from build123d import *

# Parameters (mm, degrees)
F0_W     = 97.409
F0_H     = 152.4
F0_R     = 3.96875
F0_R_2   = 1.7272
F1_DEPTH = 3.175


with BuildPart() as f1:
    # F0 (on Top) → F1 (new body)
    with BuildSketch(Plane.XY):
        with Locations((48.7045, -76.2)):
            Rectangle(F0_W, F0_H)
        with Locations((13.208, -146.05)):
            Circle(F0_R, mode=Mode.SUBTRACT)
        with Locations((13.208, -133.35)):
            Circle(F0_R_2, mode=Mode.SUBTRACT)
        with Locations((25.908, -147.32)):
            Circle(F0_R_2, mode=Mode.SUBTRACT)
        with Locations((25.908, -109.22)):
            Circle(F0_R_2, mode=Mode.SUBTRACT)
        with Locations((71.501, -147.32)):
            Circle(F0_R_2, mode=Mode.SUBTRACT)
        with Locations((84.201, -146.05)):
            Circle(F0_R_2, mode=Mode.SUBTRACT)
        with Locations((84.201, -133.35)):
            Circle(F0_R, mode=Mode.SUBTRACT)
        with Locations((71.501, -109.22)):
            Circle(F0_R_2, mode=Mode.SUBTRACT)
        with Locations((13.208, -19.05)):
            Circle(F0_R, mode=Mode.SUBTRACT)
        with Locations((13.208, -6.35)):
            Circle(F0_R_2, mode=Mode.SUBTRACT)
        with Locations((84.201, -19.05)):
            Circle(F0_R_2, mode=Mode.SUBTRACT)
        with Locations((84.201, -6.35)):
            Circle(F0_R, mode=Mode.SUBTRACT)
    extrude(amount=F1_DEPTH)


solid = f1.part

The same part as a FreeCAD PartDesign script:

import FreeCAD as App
import Part
import Sketcher

V = App.Vector
Q = App.Units.Quantity

doc = App.newDocument("Part")
body = doc.addObject("PartDesign::Body", "Body")

# Sketch on XY plane
sketch1 = doc.addObject("Sketcher::SketchObject", "Sketch")
body.addObject(sketch1)
sketch1.AttachmentSupport = (doc.XY_Plane, [""])
sketch1.MapMode = "FlatFace"
sketch1.addGeometry([
    Part.LineSegment(V(0, 0, 0), V(0, -152.4, 0)),  # 0
    Part.LineSegment(V(0, -152.4, 0), V(97.409, -152.4, 0)),  # 1
    Part.LineSegment(V(97.409, -152.4, 0), V(97.409, 0, 0)),  # 2
    Part.LineSegment(V(97.409, 0, 0), V(0, 0, 0)),  # 3
    Part.Circle(V(13.208, -146.05, 0), V(0, 0, 1), 3.96875),  # 4
    Part.Circle(V(13.208, -133.35, 0), V(0, 0, 1), 1.7272),  # 5
    Part.Circle(V(25.908, -147.32, 0), V(0, 0, 1), 1.7272),  # 6
    Part.Circle(V(25.908, -109.22, 0), V(0, 0, 1), 1.7272),  # 7
    Part.Circle(V(71.501, -147.32, 0), V(0, 0, 1), 1.7272),  # 8
    Part.Circle(V(84.201, -146.05, 0), V(0, 0, 1), 1.7272),  # 9
    Part.Circle(V(84.201, -133.35, 0), V(0, 0, 1), 3.96875),  # 10
    Part.Circle(V(71.501, -109.22, 0), V(0, 0, 1), 1.7272),  # 11
    Part.Circle(V(13.208, -19.05, 0), V(0, 0, 1), 3.96875),  # 12
    Part.Circle(V(13.208, -6.35, 0), V(0, 0, 1), 1.7272),  # 13
    Part.Circle(V(84.201, -19.05, 0), V(0, 0, 1), 1.7272),  # 14
    Part.Circle(V(84.201, -6.35, 0), V(0, 0, 1), 3.96875),  # 15
], False)
sketch1.addConstraint([
    Sketcher.Constraint("Coincident", 0, 2, 1, 1),
    Sketcher.Constraint("Coincident", 1, 2, 2, 1),
    Sketcher.Constraint("Coincident", 2, 2, 3, 1),
    Sketcher.Constraint("Coincident", 3, 2, 0, 1),
    Sketcher.Constraint("Vertical", 0),
    Sketcher.Constraint("Horizontal", 1),
    Sketcher.Constraint("Vertical", 2),
    Sketcher.Constraint("Horizontal", 3),
    Sketcher.Constraint("Coincident", 3, 2, -1, 1),
    Sketcher.Constraint("Equal", 5, 6),
    Sketcher.Constraint("Equal", 6, 7),
    Sketcher.Constraint("Equal", 7, 8),
    Sketcher.Constraint("Equal", 8, 9),
    Sketcher.Constraint("Equal", 4, 10),
    Sketcher.Constraint("Equal", 9, 11),
    Sketcher.Constraint("Equal", 10, 12),
    Sketcher.Constraint("Equal", 11, 13),
    Sketcher.Constraint("Equal", 13, 14),
    Sketcher.Constraint("Equal", 12, 15),
    Sketcher.Constraint("Horizontal", 6, 3, 8, 3),
    Sketcher.Constraint("Horizontal", 4, 3, 9, 3),
    Sketcher.Constraint("Horizontal", 5, 3, 10, 3),
    Sketcher.Constraint("Horizontal", 7, 3, 11, 3),
    Sketcher.Constraint("Horizontal", 12, 3, 14, 3),
    Sketcher.Constraint("Horizontal", 13, 3, 15, 3),
    Sketcher.Constraint("Vertical", 4, 3, 5, 3),
    Sketcher.Constraint("Vertical", 6, 3, 7, 3),
    Sketcher.Constraint("Vertical", 9, 3, 10, 3),
    Sketcher.Constraint("Vertical", 8, 3, 11, 3),
    Sketcher.Constraint("Vertical", 5, 3, 12, 3),
    Sketcher.Constraint("Vertical", 12, 3, 13, 3),
    Sketcher.Constraint("Vertical", 10, 3, 14, 3),
    Sketcher.Constraint("Vertical", 14, 3, 15, 3),
    Sketcher.Constraint("DistanceY", 0, 2, 0, 1, Q("6 in")),
    Sketcher.Constraint("Diameter", 4, Q("0.3125 in")),
    Sketcher.Constraint("Diameter", 5, Q("0.136 in")),
    Sketcher.Constraint("DistanceY", 4, 3, 12, 3, Q("5 in")),
    Sketcher.Constraint("DistanceY", 5, 3, 13, 3, Q("5 in")),
    Sketcher.Constraint("DistanceY", 6, 3, -1, 1, Q("5.8 in")),
    Sketcher.Constraint("DistanceY", 7, 3, -1, 1, Q("4.3 in")),
    Sketcher.Constraint("DistanceY", 4, 3, 5, 3, Q("0.5 in")),
    Sketcher.Constraint("DistanceX", 4, 3, 6, 3, Q("0.5 in")),
    Sketcher.Constraint("DistanceX", 8, 3, 9, 3, Q("0.5 in")),
    Sketcher.Constraint("DistanceX", 1, 1, 1, 2, Q("3.835 in")),
    Sketcher.Constraint("DistanceX", -1, 1, 4, 3, Q("0.52 in")),
    Sketcher.Constraint("DistanceY", 4, 3, -1, 1, Q("5.75 in")),
    Sketcher.Constraint("DistanceX", 9, 3, 1, 2, Q("0.52 in")),
])
pad1 = doc.addObject("PartDesign::Pad", "Pad")
body.addObject(pad1)
pad1.Profile = sketch1
pad1.Length = Q("0.125 in")

doc.recompute()
